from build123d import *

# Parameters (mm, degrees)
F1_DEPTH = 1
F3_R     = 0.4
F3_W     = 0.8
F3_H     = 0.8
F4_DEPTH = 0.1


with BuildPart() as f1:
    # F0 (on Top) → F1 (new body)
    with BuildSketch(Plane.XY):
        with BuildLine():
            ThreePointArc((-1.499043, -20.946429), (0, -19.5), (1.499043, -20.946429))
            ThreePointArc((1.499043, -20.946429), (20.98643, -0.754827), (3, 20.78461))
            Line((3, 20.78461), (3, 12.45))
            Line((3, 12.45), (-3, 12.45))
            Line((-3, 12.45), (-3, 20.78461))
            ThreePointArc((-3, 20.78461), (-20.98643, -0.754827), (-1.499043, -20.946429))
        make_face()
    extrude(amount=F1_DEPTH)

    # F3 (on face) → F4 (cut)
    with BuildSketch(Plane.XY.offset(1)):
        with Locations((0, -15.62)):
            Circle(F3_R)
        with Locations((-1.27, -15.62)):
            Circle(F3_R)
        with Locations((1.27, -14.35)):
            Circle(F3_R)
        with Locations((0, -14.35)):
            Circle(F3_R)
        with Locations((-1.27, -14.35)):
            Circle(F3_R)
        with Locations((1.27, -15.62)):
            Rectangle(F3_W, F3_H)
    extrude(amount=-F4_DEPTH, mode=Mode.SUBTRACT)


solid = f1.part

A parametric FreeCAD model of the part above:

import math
import FreeCAD as App
import Part
import Sketcher
Q = App.Units.Quantity


def add_polygon(sketch, points):
    """Adds a closed chain of lines whose ends are joined by coincident constraints."""
    first, n = sketch.GeometryCount, len(points)
    for a, b in zip(points, points[1:] + points[:1]):
        sketch.addGeometry(Part.LineSegment(App.Vector(*a, 0), App.Vector(*b, 0)), False)
    for i in range(n):
        sketch.addConstraint(Sketcher.Constraint("Coincident", first + i, 2, first + (i + 1) % n, 1))

doc = App.newDocument("Part")
body = doc.addObject("PartDesign::Body", "Body")

sketch1 = doc.addObject("Sketcher::SketchObject", "Sketch")
body.addObject(sketch1)
sketch1.AttachmentSupport = (doc.XY_Plane, [""])
sketch1.MapMode = "FlatFace"
sketch1.addGeometry([
    Part.ArcOfCircle(Part.Circle(App.Vector(0, -21, 0), App.Vector(0, 0, 1), 1.5), math.radians(2), math.radians(178)),
    Part.ArcOfCircle(Part.Circle(App.Vector(0, 0, 0), App.Vector(0, 0, 1), 21), math.radians(-86), math.radians(82)),
    Part.LineSegment(App.Vector(3, 20.8, 0), App.Vector(3, 12.4, 0)),
    Part.LineSegment(App.Vector(3, 12.4, 0), App.Vector(-3, 12.4, 0)),
    Part.LineSegment(App.Vector(-3, 12.4, 0), App.Vector(-3, 20.8, 0)),
    Part.ArcOfCircle(Part.Circle(App.Vector(0, 0, 0), App.Vector(0, 0, 1), 21), math.radians(98), math.radians(266)),
], False)
sketch1.addConstraint([
    Sketcher.Constraint("Coincident", 0, 1, 1, 1),
    Sketcher.Constraint("Coincident", 1, 2, 2, 1),
    Sketcher.Constraint("Coincident", 2, 2, 3, 1),
    Sketcher.Constraint("Coincident", 3, 2, 4, 1),
    Sketcher.Constraint("Coincident", 4, 2, 5, 1),
    Sketcher.Constraint("Coincident", 5, 2, 0, 2),
    Sketcher.Constraint("Vertical", 2),
    Sketcher.Constraint("Horizontal", 3),
    Sketcher.Constraint("Vertical", 4),
    Sketcher.Constraint("Coincident", 1, 3, -1, 1),
    Sketcher.Constraint("Coincident", 5, 3, -1, 1),
    Sketcher.Constraint("Equal", 1, 5),
    Sketcher.Constraint("PointOnObject", 0, 3, -2),
    Sketcher.Constraint("Horizontal", 1, 2, 4, 2),
    Sketcher.Constraint("Radius", 1, Q("21 mm")),
    Sketcher.Constraint("Radius", 0, Q("1.5 mm")),
    Sketcher.Constraint("DistanceX", 3, 2, 3, 1, Q("6 mm")),
    Sketcher.Constraint("DistanceY", 0, 3, -1, 1, Q("21 mm")),
    Sketcher.Constraint("DistanceY", -1, 1, 2, 2, Q("12.45 mm")),
])
pad1 = doc.addObject("PartDesign::Pad", "Pad")
body.addObject(pad1)
pad1.Profile = sketch1
pad1.Length = 1

sketch2 = doc.addObject("Sketcher::SketchObject", "Sketch001")
body.addObject(sketch2)
sketch2.AttachmentSupport = (doc.XY_Plane, [""])
sketch2.MapMode = "FlatFace"
sketch2.AttachmentOffset = App.Placement(App.Vector(0, 0, 1), App.Rotation())
sketch2.addGeometry(Part.Circle(App.Vector(0, -15.62, 0), App.Vector(0, 0, 1), 0.4), False)
sketch2.addGeometry(Part.Circle(App.Vector(-1.27, -15.62, 0), App.Vector(0, 0, 1), 0.4), False)
sketch2.addGeometry(Part.Circle(App.Vector(1.27, -14.35, 0), App.Vector(0, 0, 1), 0.4), False)
sketch2.addGeometry(Part.Circle(App.Vector(0, -14.35, 0), App.Vector(0, 0, 1), 0.4), False)
sketch2.addGeometry(Part.Circle(App.Vector(-1.27, -14.35, 0), App.Vector(0, 0, 1), 0.4), False)
add_polygon(sketch2, [(0.87, -15.22), (0.87, -16.02), (1.67, -16.02), (1.67, -15.22)])
sketch2.addConstraint([
    Sketcher.Constraint("Vertical", 5),
    Sketcher.Constraint("Horizontal", 6),
    Sketcher.Constraint("Vertical", 7),
    Sketcher.Constraint("Horizontal", 8),
    Sketcher.Constraint("Equal", 0, 1),
    Sketcher.Constraint("Equal", 1, 2),
    Sketcher.Constraint("Equal", 2, 3),
    Sketcher.Constraint("Equal", 3, 4),
    Sketcher.Constraint("Symmetric", 2, 3, 4, 3, -2),
    Sketcher.Constraint("PointOnObject", 0, 3, -2),
    Sketcher.Constraint("PointOnObject", 3, 3, -2),
    Sketcher.Constraint("Horizontal", 0, 3, 1, 3),
    Sketcher.Constraint("Horizontal", 2, 3, 3, 3),
    Sketcher.Constraint("Vertical", 1, 3, 4, 3),
    Sketcher.Constraint("Equal", 8, 5),
    Sketcher.Constraint("Diameter", 0, Q("0.8 mm")),
    Sketcher.Constraint("DistanceX", 6, 1, 6, 2, Q("0.8 mm")),
    Sketcher.Constraint("DistanceY", 5, 2, 0, 3, Q("0.4 mm")),
    Sketcher.Constraint("DistanceX", 5, 2, 2, 3, Q("0.4 mm")),
    Sketcher.Constraint("DistanceY", 0, 3, -1, 1, Q("15.62 mm")),
    Sketcher.Constraint("DistanceX", 1, 3, -1, 1, Q("1.27 mm")),
    Sketcher.Constraint("DistanceY", 2, 3, -1, 1, Q("14.35 mm")),
])
pocket1 = doc.addObject("PartDesign::Pocket", "Pocket")
body.addObject(pocket1)
pocket1.Profile = sketch2
pocket1.Length = 0.1

doc.recompute()
